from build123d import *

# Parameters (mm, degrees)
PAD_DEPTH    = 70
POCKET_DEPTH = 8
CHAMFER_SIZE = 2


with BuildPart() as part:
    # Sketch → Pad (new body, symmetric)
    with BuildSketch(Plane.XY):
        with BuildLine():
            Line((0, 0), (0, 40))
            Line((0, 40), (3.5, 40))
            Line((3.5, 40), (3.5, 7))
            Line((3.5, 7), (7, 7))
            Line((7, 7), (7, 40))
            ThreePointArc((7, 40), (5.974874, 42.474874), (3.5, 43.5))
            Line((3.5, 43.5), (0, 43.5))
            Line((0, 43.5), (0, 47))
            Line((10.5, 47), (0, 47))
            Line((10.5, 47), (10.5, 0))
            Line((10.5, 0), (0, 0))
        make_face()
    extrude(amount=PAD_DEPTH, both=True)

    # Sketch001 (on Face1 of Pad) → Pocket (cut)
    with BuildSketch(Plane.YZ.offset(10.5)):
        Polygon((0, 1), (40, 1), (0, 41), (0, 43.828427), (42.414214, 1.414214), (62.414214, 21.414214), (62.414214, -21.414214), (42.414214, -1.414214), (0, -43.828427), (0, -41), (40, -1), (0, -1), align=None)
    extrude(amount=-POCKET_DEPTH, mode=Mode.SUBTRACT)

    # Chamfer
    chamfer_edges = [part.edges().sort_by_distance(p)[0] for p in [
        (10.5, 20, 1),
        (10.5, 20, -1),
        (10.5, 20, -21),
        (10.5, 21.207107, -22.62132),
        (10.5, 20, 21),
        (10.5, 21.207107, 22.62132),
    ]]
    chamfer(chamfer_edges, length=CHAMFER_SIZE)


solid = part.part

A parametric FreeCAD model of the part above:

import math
import FreeCAD as App
import Part
import Sketcher

V = App.Vector


def edges_at(feature, points):
    """Names of the edges that pass closest to the given points."""
    edges = feature.Shape.Edges
    near = lambda p: min(range(len(edges)), key=lambda i: edges[i].distToShape(Part.Vertex(*p))[0])
    return sorted({f"Edge{near(p) + 1}" for p in points})

doc = App.newDocument("Part")
body = doc.addObject("PartDesign::Body", "Body")

# Sketch on XY plane
sketch1 = doc.addObject("Sketcher::SketchObject", "Sketch")
body.addObject(sketch1)
sketch1.AttachmentSupport = (doc.XY_Plane, [""])
sketch1.MapMode = "FlatFace"
sketch1.addGeometry(Part.LineSegment(V(0, 40, 0), V(0, 0, 0)), False)
sketch1.addGeometry(Part.LineSegment(V(0, 0, 0), V(10.5, 0, 0)), False)
sketch1.addGeometry(Part.LineSegment(V(10.5, 0, 0), V(10.5, 47, 0)), False)
sketch1.addGeometry(Part.LineSegment(V(10.5, 47, 0), V(0, 47, 0)), False)
sketch1.addGeometry(Part.LineSegment(V(0, 47, 0), V(0, 43.5, 0)), False)
sketch1.addGeometry(Part.LineSegment(V(0, 43.5, 0), V(3.5, 43.5, 0)), False)
sketch1.addGeometry(Part.ArcOfCircle(Part.Circle(V(3.500001, 40.000001, 0), V(0, 0, 1), 3.499999), math.radians(-0.000015), math.radians(90.000015)), False)
sketch1.addGeometry(Part.LineSegment(V(7, 40, 0), V(7, 7, 0)), False)
sketch1.addGeometry(Part.LineSegment(V(7, 7, 0), V(3.5, 7, 0)), False)
sketch1.addGeometry(Part.LineSegment(V(3.5, 7, 0), V(3.5, 40, 0)), False)
sketch1.addGeometry(Part.LineSegment(V(3.5, 40, 0), V(0, 40, 0)), False)
sketch1.addConstraint(Sketcher.Constraint("Coincident", 0, 2, 1, 1))
sketch1.addConstraint(Sketcher.Constraint("Coincident", 1, 2, 2, 1))
sketch1.addConstraint(Sketcher.Constraint("Coincident", 2, 2, 3, 1))
sketch1.addConstraint(Sketcher.Constraint("Coincident", 3, 2, 4, 1))
sketch1.addConstraint(Sketcher.Constraint("Coincident", 4, 2, 5, 1))
sketch1.addConstraint(Sketcher.Constraint("Tangent", 5, 2, 6, 2))
sketch1.addConstraint(Sketcher.Constraint("Tangent", 6, 1, 7, 1))
sketch1.addConstraint(Sketcher.Constraint("Coincident", 7, 2, 8, 1))
sketch1.addConstraint(Sketcher.Constraint("Coincident", 8, 2, 9, 1))
sketch1.addConstraint(Sketcher.Constraint("Coincident", 9, 2, 10, 1))
sketch1.addConstraint(Sketcher.Constraint("Coincident", 10, 2, 0, 1))
sketch1.addConstraint(Sketcher.Constraint("Vertical", 0))
sketch1.addConstraint(Sketcher.Constraint("Horizontal", 1))
sketch1.addConstraint(Sketcher.Constraint("Vertical", 2))
sketch1.addConstraint(Sketcher.Constraint("Horizontal", 3))
sketch1.addConstraint(Sketcher.Constraint("Vertical", 4))
sketch1.addConstraint(Sketcher.Constraint("Horizontal", 5))
sketch1.addConstraint(Sketcher.Constraint("Vertical", 7))
sketch1.addConstraint(Sketcher.Constraint("Horizontal", 8))
sketch1.addConstraint(Sketcher.Constraint("Vertical", 9))
sketch1.addConstraint(Sketcher.Constraint("Horizontal", 10))
sketch1.addConstraint(Sketcher.Constraint("Coincident", 0, 2, -1, 1))
sketch1.addConstraint(Sketcher.Constraint("Coincident", 9, 2, 6, 3))
sketch1.addConstraint(Sketcher.Constraint("PointOnObject", 3, 2, -2))
sketch1.addConstraint(Sketcher.Constraint("Equal", 5, 8))
sketch1.addConstraint(Sketcher.Constraint("Equal", 10, 4))
sketch1.addConstraint(Sketcher.Constraint("Radius", 6, 3.499999))
sketch1.addConstraint(Sketcher.Constraint("DistanceY", 0, 2, 0, 1, 40.0))
sketch1.addConstraint(Sketcher.Constraint("DistanceY", 7, 2, 7, 1, 33.0))
sketch1.addConstraint(Sketcher.Constraint("DistanceX", 1, 1, 1, 2, 10.5))
pad1 = doc.addObject("PartDesign::Pad", "Pad")
body.addObject(pad1)
pad1.Profile = sketch1
pad1.Length = 140
pad1.Midplane = True

# Sketch on YZ plane
sketch2 = doc.addObject("Sketcher::SketchObject", "Sketch001")
body.addObject(sketch2)
sketch2.AttachmentSupport = (doc.YZ_Plane, [""])
sketch2.MapMode = "FlatFace"
sketch2.AttachmentOffset = App.Placement(V(0, 0, 10.5), App.Rotation())
sketch2.addGeometry(Part.LineSegment(V(40, 1, 0), V(0, 1, 0)), False)
sketch2.addGeometry(Part.LineSegment(V(0, 1, 0), V(0, -1, 0)), False)
sketch2.addGeometry(Part.LineSegment(V(0, -1, 0), V(40, -1, 0)), False)
sketch2.addGeometry(Part.LineSegment(V(40, -1, 0), V(0, -41, 0)), False)
sketch2.addGeometry(Part.LineSegment(V(0, -41, 0), V(0, -43.828427, 0)), False)
sketch2.addGeometry(Part.LineSegment(V(0, -43.828427, 0), V(42.414214, -1.414214, 0)), False)
sketch2.addGeometry(Part.LineSegment(V(42.414214, -1.414214, 0), V(62.414214, -21.414214, 0)), False)
sketch2.addGeometry(Part.LineSegment(V(62.414214, -21.414214, 0), V(62.414214, 21.414214, 0)), False)
sketch2.addGeometry(Part.LineSegment(V(62.414214, 21.414214, 0), V(42.414214, 1.414214, 0)), False)
sketch2.addGeometry(Part.LineSegment(V(42.414214, 1.414214, 0), V(0, 43.828427, 0)), False)
sketch2.addGeometry(Part.LineSegment(V(0, 43.828427, 0), V(0, 41, 0)), False)
sketch2.addGeometry(Part.LineSegment(V(0, 41, 0), V(40, 1, 0)), False)
sketch2.addConstraint(Sketcher.Constraint("Coincident", 0, 2, 1, 1))
sketch2.addConstraint(Sketcher.Constraint("Coincident", 1, 2, 2, 1))
sketch2.addConstraint(Sketcher.Constraint("Coincident", 2, 2, 3, 1))
sketch2.addConstraint(Sketcher.Constraint("Coincident", 3, 2, 4, 1))
sketch2.addConstraint(Sketcher.Constraint("Coincident", 4, 2, 5, 1))
sketch2.addConstraint(Sketcher.Constraint("Coincident", 5, 2, 6, 1))
sketch2.addConstraint(Sketcher.Constraint("Coincident", 6, 2, 7, 1))
sketch2.addConstraint(Sketcher.Constraint("Coincident", 7, 2, 8, 1))
sketch2.addConstraint(Sketcher.Constraint("Coincident", 8, 2, 9, 1))
sketch2.addConstraint(Sketcher.Constraint("Coincident", 9, 2, 10, 1))
sketch2.addConstraint(Sketcher.Constraint("Coincident", 10, 2, 11, 1))
sketch2.addConstraint(Sketcher.Constraint("Coincident", 11, 2, 0, 1))
sketch2.addConstraint(Sketcher.Constraint("Horizontal", 0))
sketch2.addConstraint(Sketcher.Constraint("Vertical", 1))
sketch2.addConstraint(Sketcher.Constraint("Horizontal", 2))
sketch2.addConstraint(Sketcher.Constraint("Vertical", 4))
sketch2.addConstraint(Sketcher.Constraint("Vertical", 7))
sketch2.addConstraint(Sketcher.Constraint("Vertical", 10))
sketch2.addConstraint(Sketcher.Constraint("Symmetric", 0, 2, 1, 2, -1, 1))
sketch2.addConstraint(Sketcher.Constraint("Symmetric", 4, 2, 9, 2, -1, 1))
sketch2.addConstraint(Sketcher.Constraint("Symmetric", 5, 2, 8, 2, -1))
sketch2.addConstraint(Sketcher.Constraint("Symmetric", 3, 2, 10, 2, -1))
sketch2.addConstraint(Sketcher.Constraint("Parallel", 3, 5))
sketch2.addConstraint(Sketcher.Constraint("Perpendicular", 5, 6))
sketch2.addConstraint(Sketcher.Constraint("Perpendicular", 6, 8))
sketch2.addConstraint(Sketcher.Constraint("Perpendicular", 8, 9))
sketch2.addConstraint(Sketcher.Constraint("Parallel", 9, 11))
sketch2.addConstraint(Sketcher.Constraint("DistanceX", 0, 2, 0, 1, 40.0))
sketch2.addConstraint(Sketcher.Constraint("DistanceY", 1, 2, 1, 1, 2.0))
sketch2.addConstraint(Sketcher.Constraint("DistanceX", 5, 2, 6, 2, 20.0))
sketch2.addConstraint(Sketcher.Constraint("DistanceY", 7, 1, 7, 2, 42.828428))
sketch2.addConstraint(Sketcher.Constraint("DistanceY", 4, 2, 4, 1, 2.828427))
pocket1 = doc.addObject("PartDesign::Pocket", "Pocket")
body.addObject(pocket1)
pocket1.Profile = sketch2
pocket1.Length = 8
doc.recompute()

chamfer = doc.addObject("PartDesign::Chamfer", "Chamfer")
body.addObject(chamfer)
chamfer.Base = (pocket1, edges_at(pocket1, [
    (10.5, 20, 1),
    (10.5, 20, -1),
    (10.5, 20, -21),
    (10.5, 21.207, -22.621),
    (10.5, 20, 21),
    (10.5, 21.207, 22.621),
]))
chamfer.Size = 2

doc.recompute()
